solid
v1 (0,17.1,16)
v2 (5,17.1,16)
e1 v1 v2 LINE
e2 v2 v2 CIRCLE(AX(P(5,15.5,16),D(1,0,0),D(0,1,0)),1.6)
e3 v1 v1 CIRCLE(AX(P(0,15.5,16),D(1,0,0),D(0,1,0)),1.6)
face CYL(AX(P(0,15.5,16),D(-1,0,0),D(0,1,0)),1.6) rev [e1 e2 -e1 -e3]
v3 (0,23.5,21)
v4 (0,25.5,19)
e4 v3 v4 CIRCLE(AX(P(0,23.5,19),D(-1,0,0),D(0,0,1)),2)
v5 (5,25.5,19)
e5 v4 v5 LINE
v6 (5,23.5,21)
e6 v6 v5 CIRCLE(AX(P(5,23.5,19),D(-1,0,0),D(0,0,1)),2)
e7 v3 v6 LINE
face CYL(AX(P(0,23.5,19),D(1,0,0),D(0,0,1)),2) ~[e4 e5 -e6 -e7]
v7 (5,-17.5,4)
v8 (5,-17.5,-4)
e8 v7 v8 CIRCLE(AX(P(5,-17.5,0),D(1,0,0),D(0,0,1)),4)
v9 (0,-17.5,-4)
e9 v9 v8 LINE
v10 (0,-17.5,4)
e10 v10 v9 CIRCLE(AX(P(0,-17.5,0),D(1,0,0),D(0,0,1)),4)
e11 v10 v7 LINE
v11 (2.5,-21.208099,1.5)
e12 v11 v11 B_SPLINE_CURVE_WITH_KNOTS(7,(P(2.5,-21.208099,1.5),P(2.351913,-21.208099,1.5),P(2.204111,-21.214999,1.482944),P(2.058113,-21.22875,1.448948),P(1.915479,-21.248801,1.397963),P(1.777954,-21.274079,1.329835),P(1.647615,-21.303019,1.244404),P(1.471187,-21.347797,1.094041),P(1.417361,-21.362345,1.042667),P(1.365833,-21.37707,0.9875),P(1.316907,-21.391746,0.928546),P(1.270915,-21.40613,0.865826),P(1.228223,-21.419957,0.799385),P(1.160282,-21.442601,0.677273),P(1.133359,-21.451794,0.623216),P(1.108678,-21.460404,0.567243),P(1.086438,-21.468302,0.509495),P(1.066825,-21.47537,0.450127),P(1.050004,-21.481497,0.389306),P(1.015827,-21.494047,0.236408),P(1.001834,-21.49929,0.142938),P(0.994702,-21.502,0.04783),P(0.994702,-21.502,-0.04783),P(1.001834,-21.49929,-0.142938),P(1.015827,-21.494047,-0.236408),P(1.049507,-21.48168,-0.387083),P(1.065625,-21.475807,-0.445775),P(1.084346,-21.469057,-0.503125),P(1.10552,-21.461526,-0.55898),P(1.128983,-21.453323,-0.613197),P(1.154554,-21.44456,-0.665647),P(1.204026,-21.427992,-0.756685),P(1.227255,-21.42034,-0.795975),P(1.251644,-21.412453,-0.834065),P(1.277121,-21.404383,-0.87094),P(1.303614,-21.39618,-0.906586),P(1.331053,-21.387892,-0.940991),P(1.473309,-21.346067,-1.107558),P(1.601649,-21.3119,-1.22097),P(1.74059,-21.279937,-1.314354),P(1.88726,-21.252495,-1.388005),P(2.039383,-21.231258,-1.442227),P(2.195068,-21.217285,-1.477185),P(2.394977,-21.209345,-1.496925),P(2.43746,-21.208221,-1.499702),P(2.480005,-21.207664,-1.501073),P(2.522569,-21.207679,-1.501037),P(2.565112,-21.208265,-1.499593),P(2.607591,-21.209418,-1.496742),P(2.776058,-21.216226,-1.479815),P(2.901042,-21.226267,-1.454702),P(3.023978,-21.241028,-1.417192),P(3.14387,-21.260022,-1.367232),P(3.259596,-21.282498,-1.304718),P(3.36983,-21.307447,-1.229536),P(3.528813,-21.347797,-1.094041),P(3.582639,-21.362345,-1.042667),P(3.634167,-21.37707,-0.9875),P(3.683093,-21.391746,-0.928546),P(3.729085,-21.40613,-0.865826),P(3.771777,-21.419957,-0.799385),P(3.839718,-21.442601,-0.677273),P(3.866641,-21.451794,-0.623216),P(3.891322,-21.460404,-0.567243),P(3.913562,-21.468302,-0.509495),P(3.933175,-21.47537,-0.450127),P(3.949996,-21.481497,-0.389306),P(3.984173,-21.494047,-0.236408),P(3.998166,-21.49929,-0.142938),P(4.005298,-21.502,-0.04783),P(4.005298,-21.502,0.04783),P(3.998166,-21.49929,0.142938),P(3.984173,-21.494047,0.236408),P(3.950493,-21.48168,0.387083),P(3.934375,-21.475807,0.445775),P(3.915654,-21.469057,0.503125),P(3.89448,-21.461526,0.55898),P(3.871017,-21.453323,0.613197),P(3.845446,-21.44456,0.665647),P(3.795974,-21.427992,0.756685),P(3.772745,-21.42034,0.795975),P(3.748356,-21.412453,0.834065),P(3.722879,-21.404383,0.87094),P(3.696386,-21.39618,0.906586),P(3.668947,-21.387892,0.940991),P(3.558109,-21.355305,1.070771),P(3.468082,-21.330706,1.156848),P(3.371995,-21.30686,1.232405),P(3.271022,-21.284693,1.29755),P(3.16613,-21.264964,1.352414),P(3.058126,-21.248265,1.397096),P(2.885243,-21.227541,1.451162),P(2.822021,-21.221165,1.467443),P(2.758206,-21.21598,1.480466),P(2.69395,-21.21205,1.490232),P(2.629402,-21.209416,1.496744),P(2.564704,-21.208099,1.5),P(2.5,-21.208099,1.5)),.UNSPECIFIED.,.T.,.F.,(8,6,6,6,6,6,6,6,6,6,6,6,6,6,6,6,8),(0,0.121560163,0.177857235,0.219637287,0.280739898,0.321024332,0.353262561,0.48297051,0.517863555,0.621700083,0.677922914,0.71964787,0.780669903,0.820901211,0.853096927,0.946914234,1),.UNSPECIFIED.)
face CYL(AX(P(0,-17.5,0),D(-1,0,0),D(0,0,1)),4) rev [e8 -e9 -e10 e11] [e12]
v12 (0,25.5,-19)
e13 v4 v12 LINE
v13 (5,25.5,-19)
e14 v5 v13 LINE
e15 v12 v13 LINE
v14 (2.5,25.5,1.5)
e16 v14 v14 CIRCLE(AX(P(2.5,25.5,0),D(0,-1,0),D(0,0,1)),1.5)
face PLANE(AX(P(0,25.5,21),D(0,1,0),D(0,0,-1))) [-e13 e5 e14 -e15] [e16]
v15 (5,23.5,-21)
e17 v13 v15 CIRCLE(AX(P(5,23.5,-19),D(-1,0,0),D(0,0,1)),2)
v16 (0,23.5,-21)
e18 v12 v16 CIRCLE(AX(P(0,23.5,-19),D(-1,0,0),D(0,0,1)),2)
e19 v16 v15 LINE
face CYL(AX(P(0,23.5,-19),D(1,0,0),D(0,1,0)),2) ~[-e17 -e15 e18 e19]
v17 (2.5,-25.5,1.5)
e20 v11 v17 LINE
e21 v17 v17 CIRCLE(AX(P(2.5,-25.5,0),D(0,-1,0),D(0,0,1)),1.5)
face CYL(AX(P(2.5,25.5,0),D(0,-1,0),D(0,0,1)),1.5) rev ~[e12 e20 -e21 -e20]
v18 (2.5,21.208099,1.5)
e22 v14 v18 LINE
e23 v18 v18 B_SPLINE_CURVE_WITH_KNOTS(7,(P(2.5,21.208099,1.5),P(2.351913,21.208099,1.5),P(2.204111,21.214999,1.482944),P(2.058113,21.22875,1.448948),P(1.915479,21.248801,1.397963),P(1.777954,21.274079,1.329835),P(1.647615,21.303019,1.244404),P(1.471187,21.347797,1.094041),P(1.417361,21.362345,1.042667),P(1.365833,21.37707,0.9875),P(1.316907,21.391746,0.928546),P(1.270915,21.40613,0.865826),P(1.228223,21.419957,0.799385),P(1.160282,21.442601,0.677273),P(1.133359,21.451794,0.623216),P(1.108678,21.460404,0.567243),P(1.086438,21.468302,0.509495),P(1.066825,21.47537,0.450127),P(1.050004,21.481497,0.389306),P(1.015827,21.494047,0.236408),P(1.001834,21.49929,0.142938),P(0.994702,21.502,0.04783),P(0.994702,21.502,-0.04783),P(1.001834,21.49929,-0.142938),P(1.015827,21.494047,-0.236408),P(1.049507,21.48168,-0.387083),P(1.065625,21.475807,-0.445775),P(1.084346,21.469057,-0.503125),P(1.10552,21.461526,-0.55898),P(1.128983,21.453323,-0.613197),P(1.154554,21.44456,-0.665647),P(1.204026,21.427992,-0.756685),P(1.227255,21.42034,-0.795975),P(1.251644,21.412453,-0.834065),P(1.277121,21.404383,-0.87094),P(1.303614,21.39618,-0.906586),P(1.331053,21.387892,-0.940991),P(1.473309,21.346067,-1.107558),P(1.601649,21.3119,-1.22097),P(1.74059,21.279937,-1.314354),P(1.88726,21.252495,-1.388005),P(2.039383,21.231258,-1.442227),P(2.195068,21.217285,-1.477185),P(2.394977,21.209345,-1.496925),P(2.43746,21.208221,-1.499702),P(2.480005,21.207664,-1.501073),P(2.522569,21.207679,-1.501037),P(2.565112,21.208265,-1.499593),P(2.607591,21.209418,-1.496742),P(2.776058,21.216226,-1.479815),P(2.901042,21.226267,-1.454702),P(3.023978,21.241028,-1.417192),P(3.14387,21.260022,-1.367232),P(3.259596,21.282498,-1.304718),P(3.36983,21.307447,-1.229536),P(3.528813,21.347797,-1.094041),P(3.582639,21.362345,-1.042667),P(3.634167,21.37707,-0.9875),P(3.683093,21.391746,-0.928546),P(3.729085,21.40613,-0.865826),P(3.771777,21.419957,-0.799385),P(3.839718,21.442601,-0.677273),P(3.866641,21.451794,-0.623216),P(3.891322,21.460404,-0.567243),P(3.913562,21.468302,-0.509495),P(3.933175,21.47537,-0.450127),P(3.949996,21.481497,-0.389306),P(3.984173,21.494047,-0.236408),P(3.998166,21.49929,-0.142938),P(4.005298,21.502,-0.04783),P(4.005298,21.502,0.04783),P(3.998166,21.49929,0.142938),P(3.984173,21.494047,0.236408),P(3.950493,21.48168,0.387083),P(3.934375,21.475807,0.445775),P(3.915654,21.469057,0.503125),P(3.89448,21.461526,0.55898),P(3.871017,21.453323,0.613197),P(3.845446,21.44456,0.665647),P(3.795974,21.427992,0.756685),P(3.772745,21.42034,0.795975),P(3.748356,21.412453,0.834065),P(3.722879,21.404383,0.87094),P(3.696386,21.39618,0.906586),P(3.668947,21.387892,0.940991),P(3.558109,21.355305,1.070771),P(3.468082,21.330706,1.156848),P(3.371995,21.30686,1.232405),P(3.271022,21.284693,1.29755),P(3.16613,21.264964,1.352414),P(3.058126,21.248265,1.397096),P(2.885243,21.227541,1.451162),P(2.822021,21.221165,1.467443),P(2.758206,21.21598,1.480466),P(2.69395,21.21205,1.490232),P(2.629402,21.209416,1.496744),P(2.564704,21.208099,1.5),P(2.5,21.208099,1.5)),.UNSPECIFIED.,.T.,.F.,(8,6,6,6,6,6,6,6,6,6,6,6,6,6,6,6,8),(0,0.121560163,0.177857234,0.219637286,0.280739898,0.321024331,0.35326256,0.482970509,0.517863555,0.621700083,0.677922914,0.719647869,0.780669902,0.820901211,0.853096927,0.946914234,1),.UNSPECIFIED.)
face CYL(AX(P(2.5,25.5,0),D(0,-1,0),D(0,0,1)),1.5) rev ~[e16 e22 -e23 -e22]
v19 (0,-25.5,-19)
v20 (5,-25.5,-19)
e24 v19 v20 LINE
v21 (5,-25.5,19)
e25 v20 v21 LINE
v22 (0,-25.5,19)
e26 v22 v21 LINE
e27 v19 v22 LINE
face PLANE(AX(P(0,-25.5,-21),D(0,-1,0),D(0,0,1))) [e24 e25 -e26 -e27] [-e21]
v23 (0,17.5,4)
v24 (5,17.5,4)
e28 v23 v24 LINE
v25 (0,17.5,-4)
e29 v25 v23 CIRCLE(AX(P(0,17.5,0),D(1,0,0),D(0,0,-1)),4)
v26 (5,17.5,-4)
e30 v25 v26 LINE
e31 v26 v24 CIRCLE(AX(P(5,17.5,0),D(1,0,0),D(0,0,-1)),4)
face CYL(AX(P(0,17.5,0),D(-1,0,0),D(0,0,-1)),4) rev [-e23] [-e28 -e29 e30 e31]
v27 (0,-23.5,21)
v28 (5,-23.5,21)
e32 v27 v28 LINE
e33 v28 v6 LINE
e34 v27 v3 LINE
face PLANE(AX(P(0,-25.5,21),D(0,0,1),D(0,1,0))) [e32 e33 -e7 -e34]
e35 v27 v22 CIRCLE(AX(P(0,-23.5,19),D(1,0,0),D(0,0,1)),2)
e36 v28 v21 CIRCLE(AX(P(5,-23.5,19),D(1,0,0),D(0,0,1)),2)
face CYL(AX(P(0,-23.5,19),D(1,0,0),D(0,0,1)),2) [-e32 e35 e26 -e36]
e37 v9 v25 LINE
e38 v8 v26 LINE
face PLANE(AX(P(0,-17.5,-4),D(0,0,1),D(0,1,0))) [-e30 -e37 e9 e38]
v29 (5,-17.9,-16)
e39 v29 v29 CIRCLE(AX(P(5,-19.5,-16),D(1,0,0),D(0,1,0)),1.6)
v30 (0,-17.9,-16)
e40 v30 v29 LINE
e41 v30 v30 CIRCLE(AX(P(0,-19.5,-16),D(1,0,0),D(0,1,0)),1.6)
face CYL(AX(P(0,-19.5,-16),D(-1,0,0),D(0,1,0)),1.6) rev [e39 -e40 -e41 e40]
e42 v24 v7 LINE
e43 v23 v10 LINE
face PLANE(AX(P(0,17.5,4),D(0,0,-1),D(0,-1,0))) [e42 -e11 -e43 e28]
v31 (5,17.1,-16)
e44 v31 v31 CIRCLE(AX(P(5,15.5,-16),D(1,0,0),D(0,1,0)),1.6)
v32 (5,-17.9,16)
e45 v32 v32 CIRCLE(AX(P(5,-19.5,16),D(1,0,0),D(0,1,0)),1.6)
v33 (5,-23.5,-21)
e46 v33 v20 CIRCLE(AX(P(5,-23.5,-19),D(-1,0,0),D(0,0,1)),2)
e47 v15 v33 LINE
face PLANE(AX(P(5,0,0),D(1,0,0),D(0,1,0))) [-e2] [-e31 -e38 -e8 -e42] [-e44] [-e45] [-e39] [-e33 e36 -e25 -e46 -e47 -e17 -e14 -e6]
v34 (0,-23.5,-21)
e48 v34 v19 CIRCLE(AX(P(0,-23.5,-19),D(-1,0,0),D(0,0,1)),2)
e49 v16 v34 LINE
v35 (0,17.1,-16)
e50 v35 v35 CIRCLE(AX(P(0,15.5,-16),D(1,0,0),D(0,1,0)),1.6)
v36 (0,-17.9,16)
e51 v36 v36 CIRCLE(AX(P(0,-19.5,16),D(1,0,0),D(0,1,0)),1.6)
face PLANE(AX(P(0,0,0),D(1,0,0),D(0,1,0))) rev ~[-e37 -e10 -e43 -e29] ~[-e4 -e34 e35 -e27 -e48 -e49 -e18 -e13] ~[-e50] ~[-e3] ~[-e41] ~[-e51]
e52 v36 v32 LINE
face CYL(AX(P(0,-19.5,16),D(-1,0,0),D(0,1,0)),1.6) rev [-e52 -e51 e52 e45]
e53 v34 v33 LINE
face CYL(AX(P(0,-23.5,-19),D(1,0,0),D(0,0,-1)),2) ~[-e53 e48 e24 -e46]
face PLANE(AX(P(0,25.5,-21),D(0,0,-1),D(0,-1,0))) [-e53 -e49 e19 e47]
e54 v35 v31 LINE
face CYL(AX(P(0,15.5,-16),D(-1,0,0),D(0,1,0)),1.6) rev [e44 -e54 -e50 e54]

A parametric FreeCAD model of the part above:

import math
import FreeCAD as App
import Part
import Sketcher
from FreeCAD import Vector
Q = App.Units.Quantity


def edges_at(feature, points):
    """Names of the edges that pass closest to the given points."""
    edges = feature.Shape.Edges
    near = lambda p: min(range(len(edges)), key=lambda i: edges[i].distToShape(Part.Vertex(*p))[0])
    return sorted({f"Edge{near(p) + 1}" for p in points})


def add_polygon(sketch, points):
    """Adds a closed chain of lines whose ends are joined by coincident constraints."""
    first, n = sketch.GeometryCount, len(points)
    for a, b in zip(points, points[1:] + points[:1]):
        sketch.addGeometry(Part.LineSegment(App.Vector(*a, 0), App.Vector(*b, 0)), False)
    for i in range(n):
        sketch.addConstraint(Sketcher.Constraint("Coincident", first + i, 2, first + (i + 1) % n, 1))

doc = App.newDocument("Part")
body = doc.addObject("PartDesign::Body", "Body")

# Sketch on YZ plane
sketch1 = body.newObject("Sketcher::SketchObject", "Sketch")
sketch1.AttachmentSupport = (doc.getObject("YZ_Plane"), [""])
sketch1.MapMode = "FlatFace"
add_polygon(sketch1, [(25.5, 21), (-25.5, 21), (-25.5, -21), (25.5, -21)])  # lines 0-3
sketch1.addGeometry(Part.Circle(Vector(-19.5, -16, 0), Vector(0, 0, 1), 1.6), False)  # 4
sketch1.addGeometry(Part.Circle(Vector(15.5, -16, 0), Vector(0, 0, 1), 1.6), False)  # 5
sketch1.addGeometry(Part.Circle(Vector(-19.5, 16, 0), Vector(0, 0, 1), 1.6), False)  # 6
sketch1.addGeometry(Part.LineSegment(Vector(-17.5, 4, 0), Vector(17.5, 4, 0)), False)  # 7
sketch1.addGeometry(Part.ArcOfCircle(Part.Circle(Vector(17.5, 0, 0), Vector(0, 0, 1), 4), math.radians(-90), math.radians(90)), False)  # 8
sketch1.addGeometry(Part.LineSegment(Vector(17.5, -4, 0), Vector(-17.5, -4, 0)), False)  # 9
sketch1.addGeometry(Part.ArcOfCircle(Part.Circle(Vector(-17.5, 0, 0), Vector(0, 0, 1), 4), math.radians(90), math.radians(270)), False)  # 10
sketch1.addGeometry(Part.Circle(Vector(15.5, 16, 0), Vector(0, 0, 1), 1.6), False)  # 11
sketch1.addConstraint([
    Sketcher.Constraint("Tangent", 7, 2, 8, 2),
    Sketcher.Constraint("Tangent", 8, 1, 9, 1),
    Sketcher.Constraint("Tangent", 9, 2, 10, 2),
    Sketcher.Constraint("Tangent", 10, 1, 7, 1),
    Sketcher.Constraint("Horizontal", 0),
    Sketcher.Constraint("Vertical", 1),
    Sketcher.Constraint("Horizontal", 2),
    Sketcher.Constraint("Vertical", 3),
    Sketcher.Constraint("Horizontal", 7),
    Sketcher.Constraint("Horizontal", 9),
    Sketcher.Constraint("Equal", 4, 5),
    Sketcher.Constraint("Equal", 5, 6),
    Sketcher.Constraint("Equal", 6, 11),
    Sketcher.Constraint("Symmetric", 8, 3, 10, 3, -1, 1),
    Sketcher.Constraint("Symmetric", 0, 2, 2, 2, -1, 1),
    Sketcher.Constraint("Symmetric", 4, 3, 6, 3, -1),
    Sketcher.Constraint("Symmetric", 5, 3, 11, 3, -1),
    Sketcher.Constraint("Horizontal", 4, 3, 5, 3),
    Sketcher.Constraint("Radius", 8, Q("4 mm")),
    Sketcher.Constraint("Diameter", 4, Q("3.2 mm")),
    Sketcher.Constraint("DistanceX", 0, 2, 0, 1, Q("51 mm")),
    Sketcher.Constraint("DistanceX", 7, 1, 7, 2, Q("35 mm")),
    Sketcher.Constraint("DistanceY", 1, 2, 1, 1, Q("42 mm")),
    Sketcher.Constraint("DistanceX", 4, 3, 5, 3, Q("35 mm")),
    Sketcher.Constraint("DistanceY", 4, 3, 6, 3, Q("32 mm")),
    Sketcher.Constraint("DistanceX", 5, 3, 2, 2, Q("10 mm")),
])
pad1 = body.newObject("PartDesign::Pad", "Pad")
pad1.Profile = sketch1
pad1.Length = 5
doc.recompute()

fillet = body.newObject("PartDesign::Fillet", "Fillet")
fillet.Base = (pad1, edges_at(pad1, [
    (2.5, 25.5, 21),
    (2.5, -25.5, 21),
    (2.5, -25.5, -21),
    (2.5, 25.5, -21),
]))
fillet.Radius = 2

# Sketch on XZ plane
sketch2 = body.newObject("Sketcher::SketchObject", "Sketch001")
sketch2.AttachmentSupport = (doc.getObject("XZ_Plane"), [""])
sketch2.MapMode = "FlatFace"
sketch2.AttachmentOffset = App.Placement(Vector(0, 0, -25.5), App.Rotation())
sketch2.addGeometry(Part.Circle(Vector(2.5, 0, 0), Vector(0, 0, 1), 1.5), False)
sketch2.addConstraint([
    Sketcher.Constraint("PointOnObject", 0, 3, -1),
    Sketcher.Constraint("Diameter", 0, Q("3 mm")),
    Sketcher.Constraint("DistanceX", -1, 1, 0, 3, Q("2.5 mm")),
])
doc.recompute()
hole = body.newObject("PartDesign::Hole", "Hole")
hole.Profile = sketch2
hole.ThreadType = "None"
hole.Diameter = 3
hole.DepthType = "Dimension"
hole.Depth = 80.45
hole.DrillPoint = "Flat"
hole.Reversed = True

doc.recompute()
